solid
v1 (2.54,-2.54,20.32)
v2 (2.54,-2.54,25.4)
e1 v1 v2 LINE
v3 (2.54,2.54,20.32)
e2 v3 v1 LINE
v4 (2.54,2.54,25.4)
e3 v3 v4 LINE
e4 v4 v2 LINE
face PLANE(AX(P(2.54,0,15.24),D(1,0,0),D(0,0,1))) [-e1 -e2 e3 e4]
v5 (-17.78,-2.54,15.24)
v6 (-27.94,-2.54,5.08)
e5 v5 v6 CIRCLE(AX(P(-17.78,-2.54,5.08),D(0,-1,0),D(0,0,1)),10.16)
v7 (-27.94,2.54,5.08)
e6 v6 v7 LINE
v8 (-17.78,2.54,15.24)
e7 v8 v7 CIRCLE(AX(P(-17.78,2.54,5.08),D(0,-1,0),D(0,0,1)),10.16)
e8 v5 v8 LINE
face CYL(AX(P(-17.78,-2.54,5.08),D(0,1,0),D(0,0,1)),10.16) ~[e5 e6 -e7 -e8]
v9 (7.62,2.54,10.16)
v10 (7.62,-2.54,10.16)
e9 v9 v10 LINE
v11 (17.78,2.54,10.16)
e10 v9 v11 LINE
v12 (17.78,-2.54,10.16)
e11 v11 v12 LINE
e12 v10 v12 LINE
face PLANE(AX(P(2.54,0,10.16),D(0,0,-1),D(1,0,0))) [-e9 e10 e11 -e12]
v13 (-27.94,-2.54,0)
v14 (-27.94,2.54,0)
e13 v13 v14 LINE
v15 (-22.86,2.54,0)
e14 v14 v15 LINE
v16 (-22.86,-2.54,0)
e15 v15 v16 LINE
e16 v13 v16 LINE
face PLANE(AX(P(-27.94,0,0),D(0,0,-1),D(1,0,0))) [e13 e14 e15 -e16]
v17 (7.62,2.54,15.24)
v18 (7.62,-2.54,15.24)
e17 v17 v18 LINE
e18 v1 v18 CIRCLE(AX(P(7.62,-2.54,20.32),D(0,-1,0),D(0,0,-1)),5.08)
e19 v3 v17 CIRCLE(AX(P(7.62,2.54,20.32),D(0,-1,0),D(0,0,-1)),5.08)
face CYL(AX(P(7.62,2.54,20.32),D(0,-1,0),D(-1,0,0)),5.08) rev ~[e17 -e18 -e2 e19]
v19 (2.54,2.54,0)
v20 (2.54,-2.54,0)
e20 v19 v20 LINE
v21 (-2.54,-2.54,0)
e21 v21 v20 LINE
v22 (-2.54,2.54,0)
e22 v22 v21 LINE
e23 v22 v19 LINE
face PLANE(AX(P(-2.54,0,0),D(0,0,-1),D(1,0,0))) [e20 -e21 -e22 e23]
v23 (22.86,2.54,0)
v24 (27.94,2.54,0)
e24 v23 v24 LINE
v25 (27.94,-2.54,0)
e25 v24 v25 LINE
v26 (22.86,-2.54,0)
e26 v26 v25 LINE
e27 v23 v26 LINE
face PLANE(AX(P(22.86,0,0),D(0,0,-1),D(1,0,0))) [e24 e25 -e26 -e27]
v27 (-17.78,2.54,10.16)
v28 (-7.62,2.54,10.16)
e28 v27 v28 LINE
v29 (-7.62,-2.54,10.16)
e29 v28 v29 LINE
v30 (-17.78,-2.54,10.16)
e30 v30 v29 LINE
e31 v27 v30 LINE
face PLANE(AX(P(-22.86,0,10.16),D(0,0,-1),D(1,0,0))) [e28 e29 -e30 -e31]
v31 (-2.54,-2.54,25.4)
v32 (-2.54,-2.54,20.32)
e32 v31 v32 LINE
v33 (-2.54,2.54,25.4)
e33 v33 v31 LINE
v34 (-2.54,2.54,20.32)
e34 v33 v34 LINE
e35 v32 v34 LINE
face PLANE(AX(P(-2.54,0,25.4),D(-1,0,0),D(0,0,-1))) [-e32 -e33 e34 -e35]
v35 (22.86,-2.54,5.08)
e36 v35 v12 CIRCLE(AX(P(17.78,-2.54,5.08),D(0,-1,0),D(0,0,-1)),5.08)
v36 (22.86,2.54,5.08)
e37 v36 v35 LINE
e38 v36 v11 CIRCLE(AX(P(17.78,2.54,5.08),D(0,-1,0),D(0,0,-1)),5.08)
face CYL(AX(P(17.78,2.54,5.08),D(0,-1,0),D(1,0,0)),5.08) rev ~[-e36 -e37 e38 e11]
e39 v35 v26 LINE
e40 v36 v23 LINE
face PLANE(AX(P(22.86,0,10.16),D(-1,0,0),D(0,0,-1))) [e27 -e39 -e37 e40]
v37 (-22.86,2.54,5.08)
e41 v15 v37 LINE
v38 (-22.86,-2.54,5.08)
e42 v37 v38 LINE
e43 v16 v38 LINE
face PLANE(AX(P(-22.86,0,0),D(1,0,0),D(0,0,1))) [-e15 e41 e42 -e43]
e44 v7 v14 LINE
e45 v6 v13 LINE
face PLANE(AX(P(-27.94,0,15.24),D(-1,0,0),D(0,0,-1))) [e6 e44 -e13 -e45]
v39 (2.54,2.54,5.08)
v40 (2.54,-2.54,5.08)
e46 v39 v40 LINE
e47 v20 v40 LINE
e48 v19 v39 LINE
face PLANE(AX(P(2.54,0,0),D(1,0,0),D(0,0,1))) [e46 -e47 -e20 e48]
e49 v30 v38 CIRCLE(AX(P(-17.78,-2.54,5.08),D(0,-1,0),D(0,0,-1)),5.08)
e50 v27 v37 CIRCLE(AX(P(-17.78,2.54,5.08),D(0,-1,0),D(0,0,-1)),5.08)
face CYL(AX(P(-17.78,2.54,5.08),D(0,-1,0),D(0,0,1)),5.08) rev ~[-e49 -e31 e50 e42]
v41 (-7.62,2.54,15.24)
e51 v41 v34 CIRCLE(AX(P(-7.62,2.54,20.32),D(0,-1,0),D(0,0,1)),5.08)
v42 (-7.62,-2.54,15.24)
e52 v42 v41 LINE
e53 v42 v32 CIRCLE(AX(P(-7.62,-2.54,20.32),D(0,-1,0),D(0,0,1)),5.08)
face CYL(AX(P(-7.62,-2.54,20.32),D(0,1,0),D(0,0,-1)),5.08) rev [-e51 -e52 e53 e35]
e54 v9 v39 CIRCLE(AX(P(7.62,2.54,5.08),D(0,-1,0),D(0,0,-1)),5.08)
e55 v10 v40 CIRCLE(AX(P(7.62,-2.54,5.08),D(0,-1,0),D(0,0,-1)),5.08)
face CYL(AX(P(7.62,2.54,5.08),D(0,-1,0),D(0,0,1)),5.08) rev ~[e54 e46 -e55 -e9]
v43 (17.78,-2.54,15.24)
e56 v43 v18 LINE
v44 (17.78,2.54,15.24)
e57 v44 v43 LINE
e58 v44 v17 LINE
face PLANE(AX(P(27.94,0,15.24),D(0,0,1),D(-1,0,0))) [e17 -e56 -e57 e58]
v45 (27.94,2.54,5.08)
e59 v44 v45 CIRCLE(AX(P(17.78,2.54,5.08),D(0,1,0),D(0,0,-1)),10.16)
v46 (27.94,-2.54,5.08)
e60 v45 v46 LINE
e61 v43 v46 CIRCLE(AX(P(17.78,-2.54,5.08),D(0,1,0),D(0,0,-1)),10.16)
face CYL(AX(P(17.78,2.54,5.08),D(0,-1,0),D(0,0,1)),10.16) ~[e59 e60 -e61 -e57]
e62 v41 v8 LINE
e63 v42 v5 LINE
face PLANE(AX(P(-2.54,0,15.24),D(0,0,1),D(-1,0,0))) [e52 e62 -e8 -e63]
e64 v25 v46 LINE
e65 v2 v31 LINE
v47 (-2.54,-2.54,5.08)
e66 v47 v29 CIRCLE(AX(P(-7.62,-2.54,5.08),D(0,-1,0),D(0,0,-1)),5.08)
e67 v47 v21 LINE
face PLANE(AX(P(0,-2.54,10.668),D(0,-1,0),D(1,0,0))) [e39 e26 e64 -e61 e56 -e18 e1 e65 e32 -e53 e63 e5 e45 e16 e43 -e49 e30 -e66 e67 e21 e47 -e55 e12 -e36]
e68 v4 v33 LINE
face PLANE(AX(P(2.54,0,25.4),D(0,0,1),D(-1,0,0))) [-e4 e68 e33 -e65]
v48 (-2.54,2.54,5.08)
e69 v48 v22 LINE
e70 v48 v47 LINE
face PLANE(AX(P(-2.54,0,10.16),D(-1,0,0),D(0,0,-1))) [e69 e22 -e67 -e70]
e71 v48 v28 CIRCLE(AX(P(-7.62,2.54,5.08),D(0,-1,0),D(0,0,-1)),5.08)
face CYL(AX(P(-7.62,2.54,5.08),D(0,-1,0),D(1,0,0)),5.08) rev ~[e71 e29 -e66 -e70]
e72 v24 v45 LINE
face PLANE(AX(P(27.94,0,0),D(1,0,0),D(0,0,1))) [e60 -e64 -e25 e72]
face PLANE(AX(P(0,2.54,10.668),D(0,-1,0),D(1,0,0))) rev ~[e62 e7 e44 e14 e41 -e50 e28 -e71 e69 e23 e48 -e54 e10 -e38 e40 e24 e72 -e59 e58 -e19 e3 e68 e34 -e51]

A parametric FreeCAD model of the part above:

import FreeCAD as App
import Part
import Sketcher
Q = App.Units.Quantity


def edges_at(feature, points):
    """Names of the edges that pass closest to the given points."""
    edges = feature.Shape.Edges
    near = lambda p: min(range(len(edges)), key=lambda i: edges[i].distToShape(Part.Vertex(*p))[0])
    return sorted({f"Edge{near(p) + 1}" for p in points})

doc = App.newDocument("Part")
body = doc.addObject("PartDesign::Body", "Body")

sketch1 = body.newObject("Sketcher::SketchObject", "Sketch")
sketch1.AttachmentSupport = (doc.getObject("XZ_Plane"), [""])
sketch1.MapMode = "FlatFace"
sketch1.addGeometry([
    Part.LineSegment(App.Vector(-28, 0, 0), App.Vector(-23, 0, 0)),
    Part.LineSegment(App.Vector(-23, 0, 0), App.Vector(-23, 10, 0)),
    Part.LineSegment(App.Vector(-23, 10, 0), App.Vector(-3, 10, 0)),
    Part.LineSegment(App.Vector(-3, 10, 0), App.Vector(-3, 0, 0)),
    Part.LineSegment(App.Vector(-3, 0, 0), App.Vector(3, 0, 0)),
    Part.LineSegment(App.Vector(3, 0, 0), App.Vector(3, 10, 0)),
    Part.LineSegment(App.Vector(3, 10, 0), App.Vector(23, 10, 0)),
    Part.LineSegment(App.Vector(23, 10, 0), App.Vector(23, 0, 0)),
    Part.LineSegment(App.Vector(23, 0, 0), App.Vector(28, 0, 0)),
    Part.LineSegment(App.Vector(28, 0, 0), App.Vector(28, 15, 0)),
    Part.LineSegment(App.Vector(28, 15, 0), App.Vector(3, 15, 0)),
    Part.LineSegment(App.Vector(3, 15, 0), App.Vector(3, 25, 0)),
    Part.LineSegment(App.Vector(3, 25, 0), App.Vector(-3, 25, 0)),
    Part.LineSegment(App.Vector(-3, 25, 0), App.Vector(-3, 15, 0)),
    Part.LineSegment(App.Vector(-3, 15, 0), App.Vector(-28, 15, 0)),
    Part.LineSegment(App.Vector(-28, 15, 0), App.Vector(-28, 0, 0)),
], False)
sketch1.addConstraint([
    Sketcher.Constraint("Coincident", 0, 2, 1, 1),
    Sketcher.Constraint("Coincident", 1, 2, 2, 1),
    Sketcher.Constraint("Coincident", 2, 2, 3, 1),
    Sketcher.Constraint("Coincident", 3, 2, 4, 1),
    Sketcher.Constraint("Coincident", 4, 2, 5, 1),
    Sketcher.Constraint("Coincident", 5, 2, 6, 1),
    Sketcher.Constraint("Coincident", 6, 2, 7, 1),
    Sketcher.Constraint("Coincident", 7, 2, 8, 1),
    Sketcher.Constraint("Coincident", 8, 2, 9, 1),
    Sketcher.Constraint("Coincident", 9, 2, 10, 1),
    Sketcher.Constraint("Coincident", 10, 2, 11, 1),
    Sketcher.Constraint("Coincident", 11, 2, 12, 1),
    Sketcher.Constraint("Coincident", 12, 2, 13, 1),
    Sketcher.Constraint("Coincident", 13, 2, 14, 1),
    Sketcher.Constraint("Coincident", 14, 2, 15, 1),
    Sketcher.Constraint("Coincident", 15, 2, 0, 1),
    Sketcher.Constraint("Horizontal", 0),
    Sketcher.Constraint("Vertical", 1),
    Sketcher.Constraint("Horizontal", 2),
    Sketcher.Constraint("Vertical", 3),
    Sketcher.Constraint("Horizontal", 4),
    Sketcher.Constraint("Vertical", 5),
    Sketcher.Constraint("Horizontal", 6),
    Sketcher.Constraint("Vertical", 7),
    Sketcher.Constraint("Horizontal", 8),
    Sketcher.Constraint("Vertical", 9),
    Sketcher.Constraint("Horizontal", 10),
    Sketcher.Constraint("Vertical", 11),
    Sketcher.Constraint("Horizontal", 12),
    Sketcher.Constraint("Vertical", 13),
    Sketcher.Constraint("Horizontal", 14),
    Sketcher.Constraint("Vertical", 15),
    Sketcher.Constraint("Symmetric", 3, 2, 4, 2, -1, 1),
    Sketcher.Constraint("Symmetric", 0, 2, 7, 2, -1, 1),
    Sketcher.Constraint("Symmetric", 10, 2, 13, 2, -2),
    Sketcher.Constraint("Symmetric", 8, 2, 15, 2, -2),
    Sketcher.Constraint("Horizontal", 2, 2, 5, 2),
    Sketcher.Constraint("Vertical", 5, 2, 10, 2),
    Sketcher.Constraint("Equal", 0, 4),
    Sketcher.Constraint("Equal", 7, 11),
    Sketcher.Constraint("DistanceX", 10, 2, 10, 1, Q("1 in")),
    Sketcher.Constraint("DistanceX", 0, 1, 0, 2, Q("0.2 in")),
    Sketcher.Constraint("DistanceY", 1, 1, 1, 2, Q("0.4 in")),
    Sketcher.Constraint("DistanceY", 9, 1, 9, 2, Q("0.6 in")),
])
pad1 = body.newObject("PartDesign::Pad", "Pad")
pad1.Profile = sketch1
pad1.Length = Q("0.2 in")
pad1.Midplane = True
doc.recompute()

fillet = body.newObject("PartDesign::Fillet", "Fillet")
fillet.Base = (pad1, edges_at(pad1, [
    (2.54, 0, 15.24),
    (2.54, 0, 10.16),
    (-2.54, 0, 10.16),
    (-2.54, 0, 15.24),
    (22.86, 0, 10.16),
    (-22.86, 0, 10.16),
]))
fillet.Radius = Q("0.2 in")
doc.recompute()

fillet2 = body.newObject("PartDesign::Fillet", "Fillet001")
fillet2.Base = (fillet, edges_at(fillet, [(27.94, 0, 15.24), (-27.94, 0, 15.24)]))
fillet2.Radius = Q("0.4 in")

doc.recompute()
